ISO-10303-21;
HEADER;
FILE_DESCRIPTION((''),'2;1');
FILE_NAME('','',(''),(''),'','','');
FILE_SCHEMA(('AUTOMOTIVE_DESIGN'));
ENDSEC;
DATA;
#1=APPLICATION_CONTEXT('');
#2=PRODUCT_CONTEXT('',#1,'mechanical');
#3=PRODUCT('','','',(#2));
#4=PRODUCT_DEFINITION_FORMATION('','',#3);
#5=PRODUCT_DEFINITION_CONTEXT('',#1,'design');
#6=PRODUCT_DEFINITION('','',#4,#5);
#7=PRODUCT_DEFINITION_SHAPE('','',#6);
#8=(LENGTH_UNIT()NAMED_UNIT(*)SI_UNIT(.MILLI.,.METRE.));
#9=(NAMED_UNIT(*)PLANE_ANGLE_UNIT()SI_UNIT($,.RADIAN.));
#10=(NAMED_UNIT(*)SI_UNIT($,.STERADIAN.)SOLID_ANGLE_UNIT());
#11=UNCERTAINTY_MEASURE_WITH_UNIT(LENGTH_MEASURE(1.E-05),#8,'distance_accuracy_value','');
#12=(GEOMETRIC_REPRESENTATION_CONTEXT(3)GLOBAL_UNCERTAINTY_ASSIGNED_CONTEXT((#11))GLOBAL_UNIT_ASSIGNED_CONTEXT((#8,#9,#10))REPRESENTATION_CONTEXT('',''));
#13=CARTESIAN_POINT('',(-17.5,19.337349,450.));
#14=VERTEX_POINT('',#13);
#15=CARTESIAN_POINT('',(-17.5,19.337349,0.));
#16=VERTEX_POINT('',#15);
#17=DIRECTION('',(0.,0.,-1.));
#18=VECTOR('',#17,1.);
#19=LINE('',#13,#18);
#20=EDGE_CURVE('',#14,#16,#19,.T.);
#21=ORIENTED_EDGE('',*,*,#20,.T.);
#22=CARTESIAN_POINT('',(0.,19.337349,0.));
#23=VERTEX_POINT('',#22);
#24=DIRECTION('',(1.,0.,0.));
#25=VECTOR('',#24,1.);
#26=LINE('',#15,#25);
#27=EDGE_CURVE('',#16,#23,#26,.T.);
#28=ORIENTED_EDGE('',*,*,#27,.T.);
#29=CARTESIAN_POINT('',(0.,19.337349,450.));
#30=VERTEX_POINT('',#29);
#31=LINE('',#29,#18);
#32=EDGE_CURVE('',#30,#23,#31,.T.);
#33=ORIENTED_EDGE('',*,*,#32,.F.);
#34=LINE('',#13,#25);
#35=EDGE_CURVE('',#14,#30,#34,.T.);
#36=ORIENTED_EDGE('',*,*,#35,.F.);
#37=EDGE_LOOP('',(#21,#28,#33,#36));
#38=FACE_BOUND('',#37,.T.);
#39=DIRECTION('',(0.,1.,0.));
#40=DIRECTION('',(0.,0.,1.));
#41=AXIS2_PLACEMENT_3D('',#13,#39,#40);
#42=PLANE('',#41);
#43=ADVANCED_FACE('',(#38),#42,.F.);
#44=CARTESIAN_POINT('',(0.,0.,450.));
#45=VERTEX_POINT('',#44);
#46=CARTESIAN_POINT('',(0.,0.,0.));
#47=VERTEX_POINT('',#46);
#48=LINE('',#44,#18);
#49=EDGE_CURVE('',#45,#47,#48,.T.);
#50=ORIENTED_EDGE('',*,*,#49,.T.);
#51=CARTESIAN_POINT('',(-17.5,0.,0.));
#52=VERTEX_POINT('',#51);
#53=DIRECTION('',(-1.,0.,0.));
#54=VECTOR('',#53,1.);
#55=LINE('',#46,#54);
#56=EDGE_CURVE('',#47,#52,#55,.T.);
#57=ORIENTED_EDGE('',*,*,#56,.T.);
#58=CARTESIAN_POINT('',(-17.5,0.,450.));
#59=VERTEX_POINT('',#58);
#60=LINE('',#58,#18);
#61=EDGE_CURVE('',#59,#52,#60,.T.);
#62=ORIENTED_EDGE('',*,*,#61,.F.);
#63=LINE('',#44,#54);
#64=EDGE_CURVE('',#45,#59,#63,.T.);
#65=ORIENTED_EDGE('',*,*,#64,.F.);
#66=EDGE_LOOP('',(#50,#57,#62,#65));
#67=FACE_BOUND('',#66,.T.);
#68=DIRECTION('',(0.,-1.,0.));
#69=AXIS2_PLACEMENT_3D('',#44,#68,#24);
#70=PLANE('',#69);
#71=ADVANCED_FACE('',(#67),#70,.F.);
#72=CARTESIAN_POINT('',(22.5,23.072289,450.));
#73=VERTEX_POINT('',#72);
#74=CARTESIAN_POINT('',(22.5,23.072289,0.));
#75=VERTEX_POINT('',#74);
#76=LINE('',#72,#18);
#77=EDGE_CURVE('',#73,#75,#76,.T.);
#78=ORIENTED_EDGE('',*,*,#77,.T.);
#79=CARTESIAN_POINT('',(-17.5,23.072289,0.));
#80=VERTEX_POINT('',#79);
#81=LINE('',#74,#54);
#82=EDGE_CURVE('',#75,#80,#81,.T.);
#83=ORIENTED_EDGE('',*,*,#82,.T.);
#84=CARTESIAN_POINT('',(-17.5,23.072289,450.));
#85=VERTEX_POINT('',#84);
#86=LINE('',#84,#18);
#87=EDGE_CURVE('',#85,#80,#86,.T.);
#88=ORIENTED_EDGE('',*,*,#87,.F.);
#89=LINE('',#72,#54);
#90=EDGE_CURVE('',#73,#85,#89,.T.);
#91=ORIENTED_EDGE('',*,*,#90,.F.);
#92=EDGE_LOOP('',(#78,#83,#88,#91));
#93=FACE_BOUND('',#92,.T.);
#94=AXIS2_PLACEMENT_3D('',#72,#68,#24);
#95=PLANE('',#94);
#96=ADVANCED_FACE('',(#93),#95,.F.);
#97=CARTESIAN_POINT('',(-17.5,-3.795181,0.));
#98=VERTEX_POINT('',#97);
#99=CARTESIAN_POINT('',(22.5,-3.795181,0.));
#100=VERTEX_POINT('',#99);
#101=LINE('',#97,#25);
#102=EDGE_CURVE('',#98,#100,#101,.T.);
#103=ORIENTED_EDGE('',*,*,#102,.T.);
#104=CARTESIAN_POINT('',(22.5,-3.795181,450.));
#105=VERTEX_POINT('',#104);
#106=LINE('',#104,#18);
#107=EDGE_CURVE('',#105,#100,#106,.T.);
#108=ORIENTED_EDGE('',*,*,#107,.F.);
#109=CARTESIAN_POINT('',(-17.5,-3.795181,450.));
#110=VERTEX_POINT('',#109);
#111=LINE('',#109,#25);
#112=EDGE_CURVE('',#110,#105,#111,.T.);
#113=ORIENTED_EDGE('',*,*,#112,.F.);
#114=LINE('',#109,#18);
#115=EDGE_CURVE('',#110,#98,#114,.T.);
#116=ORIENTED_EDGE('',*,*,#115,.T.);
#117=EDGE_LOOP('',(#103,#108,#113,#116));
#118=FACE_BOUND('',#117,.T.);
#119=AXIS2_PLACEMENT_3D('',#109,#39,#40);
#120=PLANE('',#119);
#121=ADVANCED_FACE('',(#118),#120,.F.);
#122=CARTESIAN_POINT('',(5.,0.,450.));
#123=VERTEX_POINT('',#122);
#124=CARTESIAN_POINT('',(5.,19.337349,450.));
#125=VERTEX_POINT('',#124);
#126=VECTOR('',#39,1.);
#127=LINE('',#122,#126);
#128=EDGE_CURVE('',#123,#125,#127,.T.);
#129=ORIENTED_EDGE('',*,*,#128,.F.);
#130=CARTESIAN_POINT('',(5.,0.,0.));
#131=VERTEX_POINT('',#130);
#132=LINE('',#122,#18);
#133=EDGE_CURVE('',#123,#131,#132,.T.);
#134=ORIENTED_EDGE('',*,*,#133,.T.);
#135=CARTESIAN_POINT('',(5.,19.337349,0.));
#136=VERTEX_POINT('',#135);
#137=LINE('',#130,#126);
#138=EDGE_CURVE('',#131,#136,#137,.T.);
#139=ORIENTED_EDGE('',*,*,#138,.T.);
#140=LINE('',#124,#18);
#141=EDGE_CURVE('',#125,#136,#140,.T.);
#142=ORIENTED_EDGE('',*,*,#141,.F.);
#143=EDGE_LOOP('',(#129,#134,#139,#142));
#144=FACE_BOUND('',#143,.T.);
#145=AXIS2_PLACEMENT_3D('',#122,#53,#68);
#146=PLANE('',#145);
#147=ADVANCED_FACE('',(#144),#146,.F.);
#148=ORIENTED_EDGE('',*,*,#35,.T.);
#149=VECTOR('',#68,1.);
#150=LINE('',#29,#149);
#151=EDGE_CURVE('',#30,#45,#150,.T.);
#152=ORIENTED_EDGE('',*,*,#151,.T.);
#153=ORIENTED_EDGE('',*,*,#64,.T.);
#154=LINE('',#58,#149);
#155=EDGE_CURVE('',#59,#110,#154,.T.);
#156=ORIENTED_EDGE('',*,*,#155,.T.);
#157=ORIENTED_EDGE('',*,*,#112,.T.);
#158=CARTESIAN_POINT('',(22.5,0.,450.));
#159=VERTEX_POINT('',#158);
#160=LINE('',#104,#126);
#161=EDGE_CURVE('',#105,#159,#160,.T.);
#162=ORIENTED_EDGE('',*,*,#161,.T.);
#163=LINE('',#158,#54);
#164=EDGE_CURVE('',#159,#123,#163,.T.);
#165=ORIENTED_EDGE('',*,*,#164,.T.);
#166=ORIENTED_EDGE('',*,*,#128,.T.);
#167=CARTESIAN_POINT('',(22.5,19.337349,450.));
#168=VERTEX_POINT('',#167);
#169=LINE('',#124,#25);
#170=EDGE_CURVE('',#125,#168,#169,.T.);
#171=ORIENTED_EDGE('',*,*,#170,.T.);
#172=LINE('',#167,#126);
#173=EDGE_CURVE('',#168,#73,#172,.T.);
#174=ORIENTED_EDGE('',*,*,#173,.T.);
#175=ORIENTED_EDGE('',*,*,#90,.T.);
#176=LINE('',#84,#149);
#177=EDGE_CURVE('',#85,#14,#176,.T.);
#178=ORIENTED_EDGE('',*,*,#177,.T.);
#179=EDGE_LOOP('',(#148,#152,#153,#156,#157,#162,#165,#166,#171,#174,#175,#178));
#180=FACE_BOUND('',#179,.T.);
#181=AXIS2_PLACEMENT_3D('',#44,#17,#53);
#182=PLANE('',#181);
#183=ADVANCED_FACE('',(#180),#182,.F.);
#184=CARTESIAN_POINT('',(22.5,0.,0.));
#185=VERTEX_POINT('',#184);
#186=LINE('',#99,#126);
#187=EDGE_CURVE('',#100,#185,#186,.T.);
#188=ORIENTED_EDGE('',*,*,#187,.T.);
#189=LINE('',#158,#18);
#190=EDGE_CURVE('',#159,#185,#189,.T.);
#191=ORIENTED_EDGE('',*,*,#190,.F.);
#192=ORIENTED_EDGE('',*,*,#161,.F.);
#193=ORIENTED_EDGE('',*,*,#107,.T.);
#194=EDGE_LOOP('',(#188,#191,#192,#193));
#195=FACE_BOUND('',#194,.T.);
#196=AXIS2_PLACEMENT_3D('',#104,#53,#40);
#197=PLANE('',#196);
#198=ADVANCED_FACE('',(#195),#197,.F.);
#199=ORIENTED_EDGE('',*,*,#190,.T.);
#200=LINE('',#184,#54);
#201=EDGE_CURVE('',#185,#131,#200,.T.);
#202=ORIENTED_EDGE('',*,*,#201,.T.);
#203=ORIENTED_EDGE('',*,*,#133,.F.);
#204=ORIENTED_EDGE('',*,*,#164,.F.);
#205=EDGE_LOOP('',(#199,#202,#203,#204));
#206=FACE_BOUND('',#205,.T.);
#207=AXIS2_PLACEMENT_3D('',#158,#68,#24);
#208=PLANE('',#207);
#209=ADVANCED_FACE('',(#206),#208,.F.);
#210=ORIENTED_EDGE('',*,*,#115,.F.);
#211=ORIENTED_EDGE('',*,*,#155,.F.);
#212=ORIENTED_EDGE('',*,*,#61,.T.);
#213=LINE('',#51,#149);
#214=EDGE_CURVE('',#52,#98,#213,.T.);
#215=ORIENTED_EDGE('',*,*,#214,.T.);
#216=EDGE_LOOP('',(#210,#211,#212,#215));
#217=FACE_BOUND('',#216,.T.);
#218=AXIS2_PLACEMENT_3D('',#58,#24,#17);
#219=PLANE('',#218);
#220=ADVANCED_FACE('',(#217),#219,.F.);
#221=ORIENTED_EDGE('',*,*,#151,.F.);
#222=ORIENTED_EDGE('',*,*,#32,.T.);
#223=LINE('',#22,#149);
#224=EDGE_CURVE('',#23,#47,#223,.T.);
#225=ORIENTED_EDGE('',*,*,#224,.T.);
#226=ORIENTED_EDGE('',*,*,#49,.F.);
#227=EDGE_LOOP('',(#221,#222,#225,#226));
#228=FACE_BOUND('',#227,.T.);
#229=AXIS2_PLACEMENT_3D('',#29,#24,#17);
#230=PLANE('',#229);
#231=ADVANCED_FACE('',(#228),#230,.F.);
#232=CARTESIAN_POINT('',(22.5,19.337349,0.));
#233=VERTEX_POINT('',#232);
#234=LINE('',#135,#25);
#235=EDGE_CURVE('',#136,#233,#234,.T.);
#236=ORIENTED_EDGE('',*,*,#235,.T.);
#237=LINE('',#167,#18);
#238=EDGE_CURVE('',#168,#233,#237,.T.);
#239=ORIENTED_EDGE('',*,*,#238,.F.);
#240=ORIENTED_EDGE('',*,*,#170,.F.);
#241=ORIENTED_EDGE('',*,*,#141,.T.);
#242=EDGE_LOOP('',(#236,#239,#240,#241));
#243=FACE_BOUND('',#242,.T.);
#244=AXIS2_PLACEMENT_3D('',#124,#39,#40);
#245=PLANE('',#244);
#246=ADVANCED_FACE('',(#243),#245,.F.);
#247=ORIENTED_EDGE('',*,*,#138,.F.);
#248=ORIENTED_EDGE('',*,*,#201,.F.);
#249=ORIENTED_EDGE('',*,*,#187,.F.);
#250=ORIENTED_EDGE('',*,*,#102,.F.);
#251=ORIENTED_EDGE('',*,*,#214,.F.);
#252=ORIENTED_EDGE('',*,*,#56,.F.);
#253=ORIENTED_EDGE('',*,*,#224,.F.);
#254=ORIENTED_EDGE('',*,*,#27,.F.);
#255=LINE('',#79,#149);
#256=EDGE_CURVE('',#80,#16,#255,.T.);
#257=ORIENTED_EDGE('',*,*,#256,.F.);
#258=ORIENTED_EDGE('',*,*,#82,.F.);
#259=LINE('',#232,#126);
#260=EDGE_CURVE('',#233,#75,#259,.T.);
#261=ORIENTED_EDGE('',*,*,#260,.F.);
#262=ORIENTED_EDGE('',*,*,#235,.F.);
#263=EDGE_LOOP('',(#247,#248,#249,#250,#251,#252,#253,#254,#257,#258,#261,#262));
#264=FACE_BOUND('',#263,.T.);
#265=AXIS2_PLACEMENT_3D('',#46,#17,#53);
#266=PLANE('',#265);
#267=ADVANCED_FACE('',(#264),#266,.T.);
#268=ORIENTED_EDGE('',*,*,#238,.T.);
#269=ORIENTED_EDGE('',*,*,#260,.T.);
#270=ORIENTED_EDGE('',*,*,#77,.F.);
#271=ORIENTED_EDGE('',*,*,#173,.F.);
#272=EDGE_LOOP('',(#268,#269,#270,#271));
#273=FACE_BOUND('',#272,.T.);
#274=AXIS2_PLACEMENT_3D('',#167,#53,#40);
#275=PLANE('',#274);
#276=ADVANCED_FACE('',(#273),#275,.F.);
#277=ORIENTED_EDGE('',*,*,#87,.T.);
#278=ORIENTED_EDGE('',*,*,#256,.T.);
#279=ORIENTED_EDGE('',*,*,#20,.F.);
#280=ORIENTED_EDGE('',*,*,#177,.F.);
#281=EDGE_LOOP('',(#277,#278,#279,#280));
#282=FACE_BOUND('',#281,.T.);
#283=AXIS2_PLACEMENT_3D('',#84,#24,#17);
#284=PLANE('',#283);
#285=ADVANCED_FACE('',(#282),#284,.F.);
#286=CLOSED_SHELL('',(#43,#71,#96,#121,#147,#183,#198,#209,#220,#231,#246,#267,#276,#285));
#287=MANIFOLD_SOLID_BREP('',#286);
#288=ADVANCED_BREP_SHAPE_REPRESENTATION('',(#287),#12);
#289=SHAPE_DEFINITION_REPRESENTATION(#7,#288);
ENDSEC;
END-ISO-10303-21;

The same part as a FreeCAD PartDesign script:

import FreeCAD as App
import Part
import Sketcher
from FreeCAD import Vector

doc = App.newDocument("Part")
body = doc.addObject("PartDesign::Body", "Body")

# Sketch on XY plane
sketch1 = doc.addObject("Sketcher::SketchObject", "Sketch")
body.addObject(sketch1)
sketch1.AttachmentSupport = (doc.XY_Plane, [""])
sketch1.MapMode = "FlatFace"
sketch1.addGeometry(Part.LineSegment(Vector(0, 0, 0), Vector(-17.5, 0, 0)), False)
sketch1.addGeometry(Part.LineSegment(Vector(-17.5, 0, 0), Vector(-17.5, -3.8, 0)), False)
sketch1.addGeometry(Part.LineSegment(Vector(-17.5, -3.8, 0), Vector(22.5, -3.8, 0)), False)
sketch1.addGeometry(Part.LineSegment(Vector(22.5, -3.8, 0), Vector(22.5, 0, 0)), False)
sketch1.addGeometry(Part.LineSegment(Vector(22.5, 0, 0), Vector(5, 0, 0)), False)
sketch1.addGeometry(Part.LineSegment(Vector(5, 0, 0), Vector(5, 19.3, 0)), False)
sketch1.addGeometry(Part.LineSegment(Vector(5, 19.3, 0), Vector(22.5, 19.3, 0)), False)
sketch1.addGeometry(Part.LineSegment(Vector(22.5, 19.3, 0), Vector(22.5, 23.1, 0)), False)
sketch1.addGeometry(Part.LineSegment(Vector(22.5, 23.1, 0), Vector(-17.5, 23.1, 0)), False)
sketch1.addGeometry(Part.LineSegment(Vector(-17.5, 23.1, 0), Vector(-17.5, 19.3, 0)), False)
sketch1.addGeometry(Part.LineSegment(Vector(-17.5, 19.3, 0), Vector(0, 19.3, 0)), False)
sketch1.addGeometry(Part.LineSegment(Vector(0, 19.3, 0), Vector(0, 0, 0)), False)
sketch1.addConstraint(Sketcher.Constraint("Coincident", 0, 2, 1, 1))
sketch1.addConstraint(Sketcher.Constraint("Coincident", 1, 2, 2, 1))
sketch1.addConstraint(Sketcher.Constraint("Coincident", 2, 2, 3, 1))
sketch1.addConstraint(Sketcher.Constraint("Coincident", 3, 2, 4, 1))
sketch1.addConstraint(Sketcher.Constraint("Coincident", 4, 2, 5, 1))
sketch1.addConstraint(Sketcher.Constraint("Coincident", 5, 2, 6, 1))
sketch1.addConstraint(Sketcher.Constraint("Coincident", 6, 2, 7, 1))
sketch1.addConstraint(Sketcher.Constraint("Coincident", 7, 2, 8, 1))
sketch1.addConstraint(Sketcher.Constraint("Coincident", 8, 2, 9, 1))
sketch1.addConstraint(Sketcher.Constraint("Coincident", 9, 2, 10, 1))
sketch1.addConstraint(Sketcher.Constraint("Coincident", 10, 2, 11, 1))
sketch1.addConstraint(Sketcher.Constraint("Coincident", 11, 2, 0, 1))
sketch1.addConstraint(Sketcher.Constraint("Horizontal", 0))
sketch1.addConstraint(Sketcher.Constraint("Vertical", 1))
sketch1.addConstraint(Sketcher.Constraint("Horizontal", 2))
sketch1.addConstraint(Sketcher.Constraint("Vertical", 3))
sketch1.addConstraint(Sketcher.Constraint("Horizontal", 4))
sketch1.addConstraint(Sketcher.Constraint("Vertical", 5))
sketch1.addConstraint(Sketcher.Constraint("Horizontal", 6))
sketch1.addConstraint(Sketcher.Constraint("Vertical", 7))
sketch1.addConstraint(Sketcher.Constraint("Horizontal", 8))
sketch1.addConstraint(Sketcher.Constraint("Vertical", 9))
sketch1.addConstraint(Sketcher.Constraint("Horizontal", 10))
sketch1.addConstraint(Sketcher.Constraint("Vertical", 11))
sketch1.addConstraint(Sketcher.Constraint("Coincident", 11, 2, -1, 1))
sketch1.addConstraint(Sketcher.Constraint("PointOnObject", 3, 2, -1))
sketch1.addConstraint(Sketcher.Constraint("Horizontal", 6, 2, 9, 2))
sketch1.addConstraint(Sketcher.Constraint("Vertical", 3, 2, 6, 2))
sketch1.addConstraint(Sketcher.Constraint("Vertical", 1, 2, 8, 2))
sketch1.addConstraint(Sketcher.Constraint("Equal", 0, 4))
sketch1.addConstraint(Sketcher.Constraint("DistanceX", 2, 1, 2, 2, 40.0))
sketch1.addConstraint(Sketcher.Constraint("DistanceX", 0, 2, 0, 1, 17.5))
sketch1.addConstraint(Sketcher.Constraint("DistanceY", 1, 2, 1, 1, 3.795181))
sketch1.addConstraint(Sketcher.Constraint("DistanceY", 5, 1, 5, 2, 19.337349))
sketch1.addConstraint(Sketcher.Constraint("DistanceY", 7, 1, 7, 2, 3.73494))
pad1 = doc.addObject("PartDesign::Pad", "Pad")
body.addObject(pad1)
pad1.Profile = sketch1
pad1.Length = 450

doc.recompute()
